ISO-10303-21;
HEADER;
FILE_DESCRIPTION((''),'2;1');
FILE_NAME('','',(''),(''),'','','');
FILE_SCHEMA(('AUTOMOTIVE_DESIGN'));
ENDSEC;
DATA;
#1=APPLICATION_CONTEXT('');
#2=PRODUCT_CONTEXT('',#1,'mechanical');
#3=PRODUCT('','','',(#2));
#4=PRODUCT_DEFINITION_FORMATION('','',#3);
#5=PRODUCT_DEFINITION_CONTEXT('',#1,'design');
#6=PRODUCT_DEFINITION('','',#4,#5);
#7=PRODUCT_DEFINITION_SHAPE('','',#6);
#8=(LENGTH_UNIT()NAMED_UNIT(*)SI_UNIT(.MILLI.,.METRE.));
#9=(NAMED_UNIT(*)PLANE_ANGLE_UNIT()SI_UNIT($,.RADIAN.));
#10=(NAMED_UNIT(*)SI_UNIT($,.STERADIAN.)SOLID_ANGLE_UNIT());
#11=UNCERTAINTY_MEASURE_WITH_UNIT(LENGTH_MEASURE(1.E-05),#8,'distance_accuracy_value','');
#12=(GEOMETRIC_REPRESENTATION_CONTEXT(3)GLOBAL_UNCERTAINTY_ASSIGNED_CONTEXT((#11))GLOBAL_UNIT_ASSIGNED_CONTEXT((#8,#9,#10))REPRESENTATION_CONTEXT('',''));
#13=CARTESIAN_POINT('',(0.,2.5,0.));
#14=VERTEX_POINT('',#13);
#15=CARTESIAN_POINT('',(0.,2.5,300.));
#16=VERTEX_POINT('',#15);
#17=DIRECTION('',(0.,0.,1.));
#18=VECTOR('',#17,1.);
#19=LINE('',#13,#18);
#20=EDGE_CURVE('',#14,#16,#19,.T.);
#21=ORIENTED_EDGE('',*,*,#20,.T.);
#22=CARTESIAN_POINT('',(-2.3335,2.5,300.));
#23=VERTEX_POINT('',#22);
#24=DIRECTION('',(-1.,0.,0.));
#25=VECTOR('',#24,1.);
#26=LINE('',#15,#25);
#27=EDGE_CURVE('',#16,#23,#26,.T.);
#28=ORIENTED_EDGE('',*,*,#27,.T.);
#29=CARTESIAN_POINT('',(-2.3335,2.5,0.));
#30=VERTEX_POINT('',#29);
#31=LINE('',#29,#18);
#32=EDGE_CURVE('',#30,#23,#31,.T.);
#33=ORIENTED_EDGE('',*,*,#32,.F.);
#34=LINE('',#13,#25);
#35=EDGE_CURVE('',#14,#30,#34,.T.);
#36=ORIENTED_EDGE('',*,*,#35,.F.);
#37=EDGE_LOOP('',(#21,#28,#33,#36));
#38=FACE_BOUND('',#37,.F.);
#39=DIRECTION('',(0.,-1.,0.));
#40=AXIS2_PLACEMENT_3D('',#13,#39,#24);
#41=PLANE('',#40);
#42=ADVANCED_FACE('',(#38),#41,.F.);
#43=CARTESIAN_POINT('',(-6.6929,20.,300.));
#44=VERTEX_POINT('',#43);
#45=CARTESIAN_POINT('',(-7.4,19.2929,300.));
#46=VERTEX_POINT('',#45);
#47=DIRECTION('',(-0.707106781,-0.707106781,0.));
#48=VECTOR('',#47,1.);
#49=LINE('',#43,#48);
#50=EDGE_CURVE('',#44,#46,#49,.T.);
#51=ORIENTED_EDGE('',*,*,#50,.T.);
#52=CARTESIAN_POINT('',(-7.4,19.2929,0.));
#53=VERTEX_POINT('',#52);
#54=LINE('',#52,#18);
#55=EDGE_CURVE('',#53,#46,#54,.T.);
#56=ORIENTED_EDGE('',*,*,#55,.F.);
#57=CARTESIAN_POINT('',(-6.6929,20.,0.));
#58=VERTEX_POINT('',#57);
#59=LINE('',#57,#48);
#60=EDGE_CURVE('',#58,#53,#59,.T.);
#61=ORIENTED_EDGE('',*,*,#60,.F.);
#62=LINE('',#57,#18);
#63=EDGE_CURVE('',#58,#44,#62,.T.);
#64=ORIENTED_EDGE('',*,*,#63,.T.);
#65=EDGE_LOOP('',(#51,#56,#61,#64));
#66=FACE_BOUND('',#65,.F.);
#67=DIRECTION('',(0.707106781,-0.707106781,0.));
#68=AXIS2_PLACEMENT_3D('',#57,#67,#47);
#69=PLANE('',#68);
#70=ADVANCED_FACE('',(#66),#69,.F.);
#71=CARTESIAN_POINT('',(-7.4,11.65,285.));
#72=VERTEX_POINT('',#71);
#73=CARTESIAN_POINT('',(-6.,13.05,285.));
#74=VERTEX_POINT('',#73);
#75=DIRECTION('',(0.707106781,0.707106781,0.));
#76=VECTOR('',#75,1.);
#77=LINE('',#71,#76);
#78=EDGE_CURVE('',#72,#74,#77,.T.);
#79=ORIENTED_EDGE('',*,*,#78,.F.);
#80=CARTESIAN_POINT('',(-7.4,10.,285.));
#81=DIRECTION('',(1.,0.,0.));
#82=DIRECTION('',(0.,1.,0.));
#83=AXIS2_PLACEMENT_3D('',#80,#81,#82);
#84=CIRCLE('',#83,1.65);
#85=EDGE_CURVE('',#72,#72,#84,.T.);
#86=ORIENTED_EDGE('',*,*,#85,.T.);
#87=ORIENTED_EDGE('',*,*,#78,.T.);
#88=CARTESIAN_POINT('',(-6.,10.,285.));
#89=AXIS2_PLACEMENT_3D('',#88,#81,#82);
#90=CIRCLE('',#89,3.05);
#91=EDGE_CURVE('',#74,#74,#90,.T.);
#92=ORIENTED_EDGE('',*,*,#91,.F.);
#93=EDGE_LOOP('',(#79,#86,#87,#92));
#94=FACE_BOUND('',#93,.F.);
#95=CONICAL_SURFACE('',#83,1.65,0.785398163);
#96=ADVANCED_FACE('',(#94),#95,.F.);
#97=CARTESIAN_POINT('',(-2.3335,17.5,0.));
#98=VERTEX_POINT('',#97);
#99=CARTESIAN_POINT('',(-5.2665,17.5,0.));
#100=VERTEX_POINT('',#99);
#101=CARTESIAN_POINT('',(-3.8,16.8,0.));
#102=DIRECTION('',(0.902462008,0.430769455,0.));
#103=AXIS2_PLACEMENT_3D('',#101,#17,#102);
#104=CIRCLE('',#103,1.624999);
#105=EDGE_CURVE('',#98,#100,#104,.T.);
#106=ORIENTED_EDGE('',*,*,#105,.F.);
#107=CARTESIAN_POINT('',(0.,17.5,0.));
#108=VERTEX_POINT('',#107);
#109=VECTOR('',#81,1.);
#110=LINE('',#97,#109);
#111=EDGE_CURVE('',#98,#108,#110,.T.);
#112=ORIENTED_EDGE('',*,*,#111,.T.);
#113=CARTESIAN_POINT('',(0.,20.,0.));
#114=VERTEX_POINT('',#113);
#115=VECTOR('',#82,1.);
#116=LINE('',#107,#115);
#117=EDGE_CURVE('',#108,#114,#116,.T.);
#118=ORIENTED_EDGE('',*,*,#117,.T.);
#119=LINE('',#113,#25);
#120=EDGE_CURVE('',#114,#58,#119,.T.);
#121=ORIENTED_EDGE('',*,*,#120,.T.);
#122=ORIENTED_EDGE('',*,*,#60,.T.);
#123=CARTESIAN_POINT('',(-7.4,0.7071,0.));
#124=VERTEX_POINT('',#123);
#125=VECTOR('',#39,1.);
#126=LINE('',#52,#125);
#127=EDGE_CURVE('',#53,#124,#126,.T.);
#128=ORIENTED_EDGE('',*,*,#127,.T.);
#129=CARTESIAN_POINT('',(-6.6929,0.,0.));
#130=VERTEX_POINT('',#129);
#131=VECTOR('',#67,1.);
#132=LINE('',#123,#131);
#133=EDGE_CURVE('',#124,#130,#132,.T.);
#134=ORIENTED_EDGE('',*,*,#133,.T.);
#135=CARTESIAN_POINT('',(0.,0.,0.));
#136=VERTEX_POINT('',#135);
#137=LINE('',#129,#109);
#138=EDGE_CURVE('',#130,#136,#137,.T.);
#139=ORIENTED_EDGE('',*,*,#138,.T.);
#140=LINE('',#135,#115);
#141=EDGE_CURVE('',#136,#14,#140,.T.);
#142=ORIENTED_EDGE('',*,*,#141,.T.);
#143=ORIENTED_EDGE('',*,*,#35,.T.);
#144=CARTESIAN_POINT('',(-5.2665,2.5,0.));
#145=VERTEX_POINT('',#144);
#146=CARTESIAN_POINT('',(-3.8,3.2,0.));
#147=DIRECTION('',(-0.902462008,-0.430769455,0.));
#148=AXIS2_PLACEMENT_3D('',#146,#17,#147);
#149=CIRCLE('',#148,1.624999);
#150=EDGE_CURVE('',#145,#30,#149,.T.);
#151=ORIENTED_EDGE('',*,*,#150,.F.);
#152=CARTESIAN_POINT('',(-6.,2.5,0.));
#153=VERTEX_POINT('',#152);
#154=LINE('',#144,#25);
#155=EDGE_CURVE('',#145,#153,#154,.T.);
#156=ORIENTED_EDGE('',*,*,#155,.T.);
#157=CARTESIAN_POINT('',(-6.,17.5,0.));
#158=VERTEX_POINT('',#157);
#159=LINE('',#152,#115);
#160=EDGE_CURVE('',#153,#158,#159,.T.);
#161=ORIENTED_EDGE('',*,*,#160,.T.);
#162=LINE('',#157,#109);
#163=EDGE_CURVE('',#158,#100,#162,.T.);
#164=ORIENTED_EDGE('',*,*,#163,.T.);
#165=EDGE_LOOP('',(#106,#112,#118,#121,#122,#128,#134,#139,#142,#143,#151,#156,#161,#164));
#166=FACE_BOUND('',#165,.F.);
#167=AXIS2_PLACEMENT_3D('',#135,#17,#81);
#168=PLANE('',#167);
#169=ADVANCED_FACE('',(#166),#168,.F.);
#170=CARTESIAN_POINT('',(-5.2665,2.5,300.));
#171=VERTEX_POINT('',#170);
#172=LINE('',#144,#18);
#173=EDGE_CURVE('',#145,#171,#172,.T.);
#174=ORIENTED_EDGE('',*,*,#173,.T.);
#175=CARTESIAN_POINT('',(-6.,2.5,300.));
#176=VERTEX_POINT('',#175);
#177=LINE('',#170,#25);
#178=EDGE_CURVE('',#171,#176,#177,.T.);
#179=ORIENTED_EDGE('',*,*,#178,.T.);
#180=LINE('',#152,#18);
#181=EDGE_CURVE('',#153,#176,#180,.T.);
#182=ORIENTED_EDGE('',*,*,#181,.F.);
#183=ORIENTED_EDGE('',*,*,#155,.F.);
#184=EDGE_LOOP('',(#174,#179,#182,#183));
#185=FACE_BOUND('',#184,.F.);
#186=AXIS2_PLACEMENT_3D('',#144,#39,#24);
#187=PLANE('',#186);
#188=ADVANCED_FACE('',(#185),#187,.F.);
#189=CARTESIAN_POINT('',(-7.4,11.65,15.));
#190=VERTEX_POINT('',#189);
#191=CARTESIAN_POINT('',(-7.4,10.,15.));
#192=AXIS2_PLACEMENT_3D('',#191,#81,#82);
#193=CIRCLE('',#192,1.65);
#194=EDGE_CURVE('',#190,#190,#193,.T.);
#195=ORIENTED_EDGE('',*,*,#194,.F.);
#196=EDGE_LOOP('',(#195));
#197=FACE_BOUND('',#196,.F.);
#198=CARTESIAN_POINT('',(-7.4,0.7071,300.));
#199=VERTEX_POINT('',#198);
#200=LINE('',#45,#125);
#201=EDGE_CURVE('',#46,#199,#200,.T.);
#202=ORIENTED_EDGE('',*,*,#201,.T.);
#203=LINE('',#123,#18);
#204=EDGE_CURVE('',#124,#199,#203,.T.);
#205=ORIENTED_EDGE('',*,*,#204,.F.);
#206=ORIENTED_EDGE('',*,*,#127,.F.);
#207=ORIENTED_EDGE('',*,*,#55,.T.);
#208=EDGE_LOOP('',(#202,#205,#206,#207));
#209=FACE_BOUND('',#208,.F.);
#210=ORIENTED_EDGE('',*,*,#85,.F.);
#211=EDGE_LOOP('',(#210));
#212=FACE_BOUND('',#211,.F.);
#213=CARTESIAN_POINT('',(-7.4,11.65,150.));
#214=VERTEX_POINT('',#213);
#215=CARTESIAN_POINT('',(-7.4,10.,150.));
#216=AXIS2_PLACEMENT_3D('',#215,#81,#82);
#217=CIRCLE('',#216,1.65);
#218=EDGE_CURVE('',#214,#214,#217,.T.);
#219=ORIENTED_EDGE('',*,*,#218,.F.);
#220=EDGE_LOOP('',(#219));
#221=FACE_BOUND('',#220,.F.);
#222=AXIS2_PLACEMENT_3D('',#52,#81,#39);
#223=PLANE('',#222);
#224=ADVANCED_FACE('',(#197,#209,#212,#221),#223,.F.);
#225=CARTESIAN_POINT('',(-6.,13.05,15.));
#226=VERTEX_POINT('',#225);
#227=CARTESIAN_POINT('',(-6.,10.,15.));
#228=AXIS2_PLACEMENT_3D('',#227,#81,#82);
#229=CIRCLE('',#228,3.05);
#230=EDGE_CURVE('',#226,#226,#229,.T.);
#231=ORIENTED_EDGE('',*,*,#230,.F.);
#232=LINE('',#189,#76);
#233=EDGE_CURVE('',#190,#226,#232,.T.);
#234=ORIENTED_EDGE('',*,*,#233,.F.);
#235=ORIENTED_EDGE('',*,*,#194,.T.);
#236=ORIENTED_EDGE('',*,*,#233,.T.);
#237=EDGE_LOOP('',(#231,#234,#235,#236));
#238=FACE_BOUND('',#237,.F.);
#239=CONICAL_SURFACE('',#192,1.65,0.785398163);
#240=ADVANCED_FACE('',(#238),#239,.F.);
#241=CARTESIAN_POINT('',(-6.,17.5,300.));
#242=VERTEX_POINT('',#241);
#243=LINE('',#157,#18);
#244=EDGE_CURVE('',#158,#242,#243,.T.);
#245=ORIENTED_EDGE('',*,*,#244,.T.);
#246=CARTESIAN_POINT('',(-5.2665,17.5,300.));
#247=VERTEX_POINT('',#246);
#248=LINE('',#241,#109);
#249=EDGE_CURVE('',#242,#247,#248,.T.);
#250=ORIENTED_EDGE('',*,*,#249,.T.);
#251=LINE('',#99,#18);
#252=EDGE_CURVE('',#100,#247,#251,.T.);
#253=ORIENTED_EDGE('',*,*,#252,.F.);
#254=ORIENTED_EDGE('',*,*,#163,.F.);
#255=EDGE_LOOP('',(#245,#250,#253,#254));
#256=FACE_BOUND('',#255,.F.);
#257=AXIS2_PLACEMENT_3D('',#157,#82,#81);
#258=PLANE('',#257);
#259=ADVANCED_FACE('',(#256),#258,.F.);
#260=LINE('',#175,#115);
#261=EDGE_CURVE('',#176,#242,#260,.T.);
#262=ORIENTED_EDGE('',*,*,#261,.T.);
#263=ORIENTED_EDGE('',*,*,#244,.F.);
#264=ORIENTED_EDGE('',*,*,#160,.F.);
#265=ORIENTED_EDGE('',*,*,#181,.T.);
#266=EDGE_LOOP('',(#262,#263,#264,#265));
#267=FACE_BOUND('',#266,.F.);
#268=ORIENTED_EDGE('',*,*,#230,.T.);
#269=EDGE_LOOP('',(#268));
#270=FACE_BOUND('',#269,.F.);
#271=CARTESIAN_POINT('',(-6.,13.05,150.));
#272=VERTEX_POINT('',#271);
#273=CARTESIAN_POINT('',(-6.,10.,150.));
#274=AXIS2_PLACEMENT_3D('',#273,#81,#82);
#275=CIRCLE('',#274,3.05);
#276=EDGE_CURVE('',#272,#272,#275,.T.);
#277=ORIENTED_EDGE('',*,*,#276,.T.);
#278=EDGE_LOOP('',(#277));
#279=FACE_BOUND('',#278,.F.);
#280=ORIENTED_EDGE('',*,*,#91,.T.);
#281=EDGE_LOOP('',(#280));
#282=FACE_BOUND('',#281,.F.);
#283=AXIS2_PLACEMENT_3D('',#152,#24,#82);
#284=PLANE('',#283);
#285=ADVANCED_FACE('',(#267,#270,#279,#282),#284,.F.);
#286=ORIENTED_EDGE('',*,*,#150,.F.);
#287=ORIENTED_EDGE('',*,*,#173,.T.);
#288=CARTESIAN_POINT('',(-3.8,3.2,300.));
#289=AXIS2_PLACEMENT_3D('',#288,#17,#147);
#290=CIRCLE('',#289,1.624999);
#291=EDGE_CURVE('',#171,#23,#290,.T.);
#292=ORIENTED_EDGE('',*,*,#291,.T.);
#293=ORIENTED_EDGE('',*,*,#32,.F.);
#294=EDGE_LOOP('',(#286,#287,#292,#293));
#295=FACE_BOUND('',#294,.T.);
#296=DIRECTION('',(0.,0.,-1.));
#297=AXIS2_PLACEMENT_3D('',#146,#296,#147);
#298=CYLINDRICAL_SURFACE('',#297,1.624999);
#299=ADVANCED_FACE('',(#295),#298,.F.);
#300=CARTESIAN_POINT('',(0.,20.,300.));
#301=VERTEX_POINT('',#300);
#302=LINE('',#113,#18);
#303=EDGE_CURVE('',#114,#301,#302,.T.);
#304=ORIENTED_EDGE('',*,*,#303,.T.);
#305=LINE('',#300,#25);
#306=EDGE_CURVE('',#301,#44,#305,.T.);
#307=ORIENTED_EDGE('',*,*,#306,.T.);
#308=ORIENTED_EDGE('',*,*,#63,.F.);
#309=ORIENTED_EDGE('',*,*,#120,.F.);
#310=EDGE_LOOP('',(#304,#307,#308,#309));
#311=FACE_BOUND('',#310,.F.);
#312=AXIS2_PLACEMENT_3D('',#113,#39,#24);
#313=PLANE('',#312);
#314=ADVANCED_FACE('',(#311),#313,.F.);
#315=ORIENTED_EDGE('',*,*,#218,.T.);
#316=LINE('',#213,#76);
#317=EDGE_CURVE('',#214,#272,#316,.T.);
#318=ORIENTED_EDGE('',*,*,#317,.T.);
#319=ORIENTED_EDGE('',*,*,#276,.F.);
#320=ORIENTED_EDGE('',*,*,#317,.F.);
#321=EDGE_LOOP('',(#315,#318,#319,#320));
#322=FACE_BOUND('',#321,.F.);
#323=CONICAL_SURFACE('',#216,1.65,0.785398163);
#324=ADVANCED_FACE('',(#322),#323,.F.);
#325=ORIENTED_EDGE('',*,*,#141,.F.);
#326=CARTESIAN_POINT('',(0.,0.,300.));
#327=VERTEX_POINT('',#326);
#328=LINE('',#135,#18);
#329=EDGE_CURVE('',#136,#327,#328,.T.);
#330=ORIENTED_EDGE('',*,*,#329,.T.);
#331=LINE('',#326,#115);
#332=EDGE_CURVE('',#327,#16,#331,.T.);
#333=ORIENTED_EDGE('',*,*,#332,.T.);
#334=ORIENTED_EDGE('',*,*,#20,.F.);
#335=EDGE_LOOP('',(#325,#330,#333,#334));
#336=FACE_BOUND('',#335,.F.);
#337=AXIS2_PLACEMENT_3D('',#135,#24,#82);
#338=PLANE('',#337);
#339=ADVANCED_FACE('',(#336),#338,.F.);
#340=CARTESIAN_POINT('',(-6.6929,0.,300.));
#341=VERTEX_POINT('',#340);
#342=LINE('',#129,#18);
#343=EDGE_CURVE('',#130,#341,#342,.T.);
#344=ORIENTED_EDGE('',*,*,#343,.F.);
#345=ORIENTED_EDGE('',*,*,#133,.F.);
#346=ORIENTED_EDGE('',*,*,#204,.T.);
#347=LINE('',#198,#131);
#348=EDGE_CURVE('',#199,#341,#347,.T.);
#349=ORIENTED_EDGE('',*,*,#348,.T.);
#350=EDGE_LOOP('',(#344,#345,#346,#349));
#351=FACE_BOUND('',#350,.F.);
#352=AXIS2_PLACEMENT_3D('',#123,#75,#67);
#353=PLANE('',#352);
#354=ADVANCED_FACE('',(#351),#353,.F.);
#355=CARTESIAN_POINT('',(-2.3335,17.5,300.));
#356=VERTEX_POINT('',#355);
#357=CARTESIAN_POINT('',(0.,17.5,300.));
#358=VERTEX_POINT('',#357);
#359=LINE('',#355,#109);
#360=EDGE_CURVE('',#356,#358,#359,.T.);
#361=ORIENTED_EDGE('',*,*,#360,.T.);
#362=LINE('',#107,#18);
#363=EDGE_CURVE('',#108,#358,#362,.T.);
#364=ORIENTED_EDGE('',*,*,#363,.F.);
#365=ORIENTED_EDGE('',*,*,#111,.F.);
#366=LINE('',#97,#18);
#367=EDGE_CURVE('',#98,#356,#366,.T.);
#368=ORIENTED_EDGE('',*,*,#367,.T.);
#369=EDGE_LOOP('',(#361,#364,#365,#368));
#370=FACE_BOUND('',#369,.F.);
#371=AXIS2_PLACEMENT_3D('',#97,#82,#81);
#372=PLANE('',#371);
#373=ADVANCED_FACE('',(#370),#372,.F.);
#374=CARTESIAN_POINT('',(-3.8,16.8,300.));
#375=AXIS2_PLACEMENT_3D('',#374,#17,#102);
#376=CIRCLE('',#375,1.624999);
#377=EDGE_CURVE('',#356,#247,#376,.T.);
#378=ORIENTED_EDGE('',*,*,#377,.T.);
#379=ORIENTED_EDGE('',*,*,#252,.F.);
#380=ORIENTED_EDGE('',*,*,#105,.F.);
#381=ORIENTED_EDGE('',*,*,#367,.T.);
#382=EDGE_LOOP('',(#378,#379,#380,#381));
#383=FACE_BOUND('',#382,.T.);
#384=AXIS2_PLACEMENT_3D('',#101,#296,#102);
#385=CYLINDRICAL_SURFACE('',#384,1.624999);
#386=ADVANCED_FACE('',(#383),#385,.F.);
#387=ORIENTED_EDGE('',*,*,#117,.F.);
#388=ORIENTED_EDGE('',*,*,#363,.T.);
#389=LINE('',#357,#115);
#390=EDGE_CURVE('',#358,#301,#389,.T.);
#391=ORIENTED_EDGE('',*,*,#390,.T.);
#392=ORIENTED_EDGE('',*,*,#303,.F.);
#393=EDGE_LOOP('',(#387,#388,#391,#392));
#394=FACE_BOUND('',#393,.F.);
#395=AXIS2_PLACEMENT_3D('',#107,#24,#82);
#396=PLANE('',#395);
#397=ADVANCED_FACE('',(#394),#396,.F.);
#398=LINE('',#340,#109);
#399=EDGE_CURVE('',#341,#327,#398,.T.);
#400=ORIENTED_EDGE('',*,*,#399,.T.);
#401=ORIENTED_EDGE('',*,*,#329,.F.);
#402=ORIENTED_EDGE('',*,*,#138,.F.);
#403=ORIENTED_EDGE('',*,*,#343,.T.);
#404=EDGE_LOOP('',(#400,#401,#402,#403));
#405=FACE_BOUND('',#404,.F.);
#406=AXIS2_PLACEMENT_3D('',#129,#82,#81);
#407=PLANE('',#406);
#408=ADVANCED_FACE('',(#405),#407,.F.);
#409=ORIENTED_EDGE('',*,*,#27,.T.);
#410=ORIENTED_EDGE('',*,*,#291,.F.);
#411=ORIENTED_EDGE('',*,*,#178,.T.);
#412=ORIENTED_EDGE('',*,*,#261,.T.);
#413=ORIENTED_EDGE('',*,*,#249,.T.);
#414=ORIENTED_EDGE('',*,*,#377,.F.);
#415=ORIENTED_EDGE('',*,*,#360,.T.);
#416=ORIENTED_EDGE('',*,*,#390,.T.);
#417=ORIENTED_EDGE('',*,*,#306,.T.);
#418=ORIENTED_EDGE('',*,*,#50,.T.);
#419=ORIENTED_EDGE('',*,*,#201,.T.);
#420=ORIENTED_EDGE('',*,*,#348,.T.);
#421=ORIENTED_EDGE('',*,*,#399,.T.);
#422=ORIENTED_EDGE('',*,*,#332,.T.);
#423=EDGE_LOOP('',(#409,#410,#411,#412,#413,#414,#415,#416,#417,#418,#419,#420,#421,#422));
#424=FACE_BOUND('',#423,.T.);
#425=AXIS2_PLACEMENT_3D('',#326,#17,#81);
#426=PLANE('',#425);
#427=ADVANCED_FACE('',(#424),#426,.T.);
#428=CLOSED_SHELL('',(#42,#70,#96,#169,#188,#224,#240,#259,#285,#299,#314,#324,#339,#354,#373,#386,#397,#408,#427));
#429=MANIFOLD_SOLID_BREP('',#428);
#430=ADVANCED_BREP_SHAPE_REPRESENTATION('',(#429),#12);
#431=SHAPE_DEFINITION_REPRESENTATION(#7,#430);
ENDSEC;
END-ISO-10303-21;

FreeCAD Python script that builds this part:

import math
import FreeCAD as App
import Part
import Sketcher

V = App.Vector
Q = App.Units.Quantity

doc = App.newDocument("Part")
body = doc.addObject("PartDesign::Body", "Body")

sketch1 = body.newObject("Sketcher::SketchObject", "Sketch")
sketch1.AttachmentSupport = (doc.getObject("XY_Plane"), [""])
sketch1.MapMode = "FlatFace"
sketch1.addGeometry(Part.LineSegment(V(-7.4, 19.2929, 0), V(-7.4, 0.7071, 0)), False)
sketch1.addGeometry(Part.LineSegment(V(-7.4, 0.7071, 0), V(-6.6929, 0, 0)), False)
sketch1.addGeometry(Part.LineSegment(V(-6.6929, 0, 0), V(0, 0, 0)), False)
sketch1.addGeometry(Part.LineSegment(V(0, 0, 0), V(0, 2.5, 0)), False)
sketch1.addGeometry(Part.LineSegment(V(0, 2.5, 0), V(-2.3335, 2.5, 0)), False)
sketch1.addGeometry(Part.ArcOfCircle(Part.Circle(V(-3.8, 3.2, 0), V(0, 0, 1), 1.624999), math.radians(-154.483598), math.radians(-25.516402)), False)
sketch1.addGeometry(Part.LineSegment(V(-5.2665, 2.5, 0), V(-6, 2.5, 0)), False)
sketch1.addGeometry(Part.LineSegment(V(-6, 2.5, 0), V(-6, 17.5, 0)), False)
sketch1.addGeometry(Part.LineSegment(V(-6, 17.5, 0), V(-5.2665, 17.5, 0)), False)
sketch1.addGeometry(Part.ArcOfCircle(Part.Circle(V(-3.8, 16.8, 0), V(0, 0, 1), 1.624999), math.radians(25.516402), math.radians(154.483598)), False)
sketch1.addGeometry(Part.LineSegment(V(-2.3335, 17.5, 0), V(0, 17.5, 0)), False)
sketch1.addGeometry(Part.LineSegment(V(0, 17.5, 0), V(0, 20, 0)), False)
sketch1.addGeometry(Part.LineSegment(V(0, 20, 0), V(-6.6929, 20, 0)), False)
sketch1.addGeometry(Part.LineSegment(V(-6.6929, 20, 0), V(-7.4, 19.2929, 0)), False)
sketch1.addConstraint(Sketcher.Constraint("Coincident", 0, 2, 1, 1))
sketch1.addConstraint(Sketcher.Constraint("Coincident", 1, 2, 2, 1))
sketch1.addConstraint(Sketcher.Constraint("Coincident", 2, 2, 3, 1))
sketch1.addConstraint(Sketcher.Constraint("Coincident", 3, 2, 4, 1))
sketch1.addConstraint(Sketcher.Constraint("Coincident", 4, 2, 5, 2))
sketch1.addConstraint(Sketcher.Constraint("Coincident", 5, 1, 6, 1))
sketch1.addConstraint(Sketcher.Constraint("Coincident", 6, 2, 7, 1))
sketch1.addConstraint(Sketcher.Constraint("Coincident", 7, 2, 8, 1))
sketch1.addConstraint(Sketcher.Constraint("Coincident", 8, 2, 9, 2))
sketch1.addConstraint(Sketcher.Constraint("Coincident", 9, 1, 10, 1))
sketch1.addConstraint(Sketcher.Constraint("Coincident", 10, 2, 11, 1))
sketch1.addConstraint(Sketcher.Constraint("Coincident", 11, 2, 12, 1))
sketch1.addConstraint(Sketcher.Constraint("Coincident", 12, 2, 13, 1))
sketch1.addConstraint(Sketcher.Constraint("Coincident", 13, 2, 0, 1))
sketch1.addConstraint(Sketcher.Constraint("Vertical", 0))
sketch1.addConstraint(Sketcher.Constraint("Horizontal", 2))
sketch1.addConstraint(Sketcher.Constraint("Vertical", 3))
sketch1.addConstraint(Sketcher.Constraint("Horizontal", 4))
sketch1.addConstraint(Sketcher.Constraint("Horizontal", 6))
sketch1.addConstraint(Sketcher.Constraint("Vertical", 7))
sketch1.addConstraint(Sketcher.Constraint("Horizontal", 8))
sketch1.addConstraint(Sketcher.Constraint("Horizontal", 10))
sketch1.addConstraint(Sketcher.Constraint("Vertical", 11))
sketch1.addConstraint(Sketcher.Constraint("Horizontal", 12))
sketch1.addConstraint(Sketcher.Constraint("Coincident", 2, 2, -1, 1))
sketch1.addConstraint(Sketcher.Constraint("Equal", 5, 9))
sketch1.addConstraint(Sketcher.Constraint("PointOnObject", 10, 2, -2))
sketch1.addConstraint(Sketcher.Constraint("Perpendicular", 1, 13))
sketch1.addConstraint(Sketcher.Constraint("Horizontal", 4, 2, 5, 1))
sketch1.addConstraint(Sketcher.Constraint("Horizontal", 8, 2, 9, 1))
sketch1.addConstraint(Sketcher.Constraint("Vertical", 5, 3, 9, 3))
sketch1.addConstraint(Sketcher.Constraint("Vertical", 5, 1, 8, 2))
sketch1.addConstraint(Sketcher.Constraint("Vertical", 1, 2, 12, 2))
sketch1.addConstraint(Sketcher.Constraint("Equal", 3, 11))
sketch1.addConstraint(Sketcher.Constraint("Equal", 1, 13))
sketch1.addConstraint(Sketcher.Constraint("DistanceY", 7, 1, 7, 2, Q("15 mm")))
sketch1.addConstraint(Sketcher.Constraint("Distance", 1, Q("1 mm")))
sketch1.addConstraint(Sketcher.Constraint("DistanceY", 3, 1, 3, 2, Q("2.5 mm")))
sketch1.addConstraint(Sketcher.Constraint("DistanceX", 6, 2, -1, 1, Q("6 mm")))
sketch1.addConstraint(Sketcher.Constraint("Radius", 5, Q("1.625 mm")))
sketch1.addConstraint(Sketcher.Constraint("DistanceX", 5, 3, -1, 1, Q("3.8 mm")))
sketch1.addConstraint(Sketcher.Constraint("DistanceY", -1, 1, 5, 3, Q("3.2 mm")))
sketch1.addConstraint(Sketcher.Constraint("DistanceX", 0, 2, -1, 1, Q("7.4 mm")))
pad1 = body.newObject("PartDesign::Pad", "Pad")
pad1.Profile = sketch1
pad1.Length = 300

sketch2 = body.newObject("Sketcher::SketchObject", "Sketch001")
sketch2.AttachmentSupport = (doc.getObject("XY_Plane"), [""])
sketch2.MapMode = "FlatFace"
sketch2.AttachmentOffset = App.Placement(V(0, 0, 15), App.Rotation())
sketch2.addGeometry(Part.LineSegment(V(-7.4, 10, 0), V(-6, 10, 0)), False)
sketch2.addGeometry(Part.LineSegment(V(-6, 10, 0), V(-6, 13.05, 0)), False)
sketch2.addGeometry(Part.LineSegment(V(-6, 13.05, 0), V(-7.4, 11.65, 0)), False)
sketch2.addGeometry(Part.LineSegment(V(-7.4, 11.65, 0), V(-7.4, 10, 0)), False)
sketch2.addGeometry(Part.LineSegment(V(-7.4, 10, 0), V(-6, 10, 0)), True)
sketch2.addConstraint(Sketcher.Constraint("Coincident", 0, 2, 1, 1))
sketch2.addConstraint(Sketcher.Constraint("Coincident", 1, 2, 2, 1))
sketch2.addConstraint(Sketcher.Constraint("Coincident", 2, 2, 3, 1))
sketch2.addConstraint(Sketcher.Constraint("Coincident", 3, 2, 0, 1))
sketch2.addConstraint(Sketcher.Constraint("Horizontal", 0))
sketch2.addConstraint(Sketcher.Constraint("Vertical", 1))
sketch2.addConstraint(Sketcher.Constraint("Vertical", 3))
sketch2.addConstraint(Sketcher.Constraint("Horizontal", 4))
sketch2.addConstraint(Sketcher.Constraint("Coincident", 4, 1, 3, 2))
sketch2.addConstraint(Sketcher.Constraint("Vertical", 1, 2, 4, 2))
sketch2.addConstraint(Sketcher.Constraint("Angle", 2, Q("-135 deg")))
sketch2.addConstraint(Sketcher.Constraint("DistanceX", 0, 1, 0, 2, Q("1.4 mm")))
sketch2.addConstraint(Sketcher.Constraint("DistanceX", 0, 2, -1, 1, Q("6 mm")))
sketch2.addConstraint(Sketcher.Constraint("DistanceY", -1, 1, 0, 2, Q("10 mm")))
sketch2.addConstraint(Sketcher.Constraint("DistanceY", 1, 1, 1, 2, Q("3.05 mm")))
groove = body.newObject("PartDesign::Groove", "Groove")
groove.Profile = sketch2
groove.ReferenceAxis = (sketch2, ["Axis0"])
groove.Angle = 360
doc.recompute()

linearpattern = body.newObject("PartDesign::LinearPattern", "LinearPattern")
linearpattern.Originals = [groove]
linearpattern.Direction = (doc.getObject("Z_Axis"), [""])
linearpattern.Mode = "offset"
linearpattern.Offset = 135
linearpattern.Occurrences = 3
body.Tip = linearpattern

doc.recompute()
